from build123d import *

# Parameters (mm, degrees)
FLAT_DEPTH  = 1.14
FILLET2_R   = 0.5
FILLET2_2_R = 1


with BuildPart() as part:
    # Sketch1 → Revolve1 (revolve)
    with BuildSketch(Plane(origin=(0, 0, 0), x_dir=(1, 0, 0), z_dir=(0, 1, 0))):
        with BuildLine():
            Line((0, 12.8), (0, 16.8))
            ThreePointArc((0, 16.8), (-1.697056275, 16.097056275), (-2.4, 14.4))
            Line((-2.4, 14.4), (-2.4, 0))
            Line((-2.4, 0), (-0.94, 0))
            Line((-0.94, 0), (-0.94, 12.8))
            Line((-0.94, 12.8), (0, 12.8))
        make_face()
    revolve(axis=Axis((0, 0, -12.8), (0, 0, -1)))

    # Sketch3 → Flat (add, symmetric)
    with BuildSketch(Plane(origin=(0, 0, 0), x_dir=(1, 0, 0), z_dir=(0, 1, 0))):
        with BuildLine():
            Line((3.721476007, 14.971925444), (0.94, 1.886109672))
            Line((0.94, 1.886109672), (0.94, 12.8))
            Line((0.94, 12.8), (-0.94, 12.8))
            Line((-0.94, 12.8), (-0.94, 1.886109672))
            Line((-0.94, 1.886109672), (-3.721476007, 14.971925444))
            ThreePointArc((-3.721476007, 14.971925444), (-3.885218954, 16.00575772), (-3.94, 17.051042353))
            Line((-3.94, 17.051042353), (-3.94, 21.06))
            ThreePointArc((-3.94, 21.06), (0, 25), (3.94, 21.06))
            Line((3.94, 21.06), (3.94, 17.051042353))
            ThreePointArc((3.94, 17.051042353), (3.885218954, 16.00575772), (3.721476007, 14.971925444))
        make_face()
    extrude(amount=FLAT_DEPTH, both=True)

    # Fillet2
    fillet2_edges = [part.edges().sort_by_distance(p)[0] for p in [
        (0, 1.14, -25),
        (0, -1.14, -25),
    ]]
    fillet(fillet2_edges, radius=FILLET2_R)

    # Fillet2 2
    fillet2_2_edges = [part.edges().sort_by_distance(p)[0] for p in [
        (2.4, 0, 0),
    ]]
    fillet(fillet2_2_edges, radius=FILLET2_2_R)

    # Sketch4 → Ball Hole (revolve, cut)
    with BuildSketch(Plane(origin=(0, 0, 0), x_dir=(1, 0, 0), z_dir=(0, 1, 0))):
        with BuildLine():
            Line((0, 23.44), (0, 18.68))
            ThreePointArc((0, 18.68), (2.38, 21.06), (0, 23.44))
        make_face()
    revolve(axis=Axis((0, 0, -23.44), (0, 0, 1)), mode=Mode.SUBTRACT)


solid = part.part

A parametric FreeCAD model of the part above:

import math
import FreeCAD as App
import Part
import Sketcher
from FreeCAD import Vector
Q = App.Units.Quantity


def edges_at(feature, points):
    """Names of the edges that pass closest to the given points."""
    edges = feature.Shape.Edges
    near = lambda p: min(range(len(edges)), key=lambda i: edges[i].distToShape(Part.Vertex(*p))[0])
    return sorted({f"Edge{near(p) + 1}" for p in points})

doc = App.newDocument("Part")
params = doc.addObject("Spreadsheet::Sheet", "Params")
for row, (alias, value) in enumerate([
    ("sketch1_radius", "2.4 mm"),
    ("sketch1_height", "4 mm"),
    ("sketch1_height2", "14.4 mm"),
    ("sketch1_width", "1.46 mm"),
    ("revolution_angle", "360 deg"),
    ("sketch2_radius", "10 mm"),
    ("sketch2_radius2", "3.94 mm"),
    ("pad1_length", "2.28 mm"),
    ("fillet_radius", "0.5 mm"),
    ("fillet2_radius", "1 mm"),
    ("sketch3_radius", "2.38 mm"),
    ("groove_angle", "360 deg"),
], start=1):
    params.set(f"A{row}", alias)
    params.set(f"B{row}", "=" + value)
    params.setAlias(f"B{row}", alias)

body = doc.addObject("PartDesign::Body", "Body")

sketch1 = doc.addObject("Sketcher::SketchObject", "Sketch")
body.addObject(sketch1)
sketch1.AttachmentSupport = (doc.XZ_Plane, [""])
sketch1.MapMode = "FlatFace"
sketch1.addGeometry(Part.LineSegment(Vector(0, -12.8, 0), Vector(0, -16.8, 0)), False)
sketch1.addGeometry(Part.ArcOfCircle(Part.Circle(Vector(0, -14.4, 0), Vector(0, 0, 1), 2.4), math.radians(180), math.radians(270)), False)
sketch1.addGeometry(Part.LineSegment(Vector(-2.4, -14.4, 0), Vector(-2.4, 0, 0)), False)
sketch1.addGeometry(Part.LineSegment(Vector(-2.4, 0, 0), Vector(-0.9, 0, 0)), False)
sketch1.addGeometry(Part.LineSegment(Vector(-0.9, 0, 0), Vector(-0.9, -12.8, 0)), False)
sketch1.addGeometry(Part.LineSegment(Vector(-0.9, -12.8, 0), Vector(0, -12.8, 0)), False)
sketch1.addConstraint(Sketcher.Constraint("Coincident", 0, 2, 1, 2))
sketch1.addConstraint(Sketcher.Constraint("Tangent", 1, 1, 2, 1))
sketch1.addConstraint(Sketcher.Constraint("Coincident", 2, 2, 3, 1))
sketch1.addConstraint(Sketcher.Constraint("Coincident", 3, 2, 4, 1))
sketch1.addConstraint(Sketcher.Constraint("Coincident", 4, 2, 5, 1))
sketch1.addConstraint(Sketcher.Constraint("Coincident", 5, 2, 0, 1))
sketch1.addConstraint(Sketcher.Constraint("Vertical", 0))
sketch1.addConstraint(Sketcher.Constraint("Vertical", 2))
sketch1.addConstraint(Sketcher.Constraint("Horizontal", 3))
sketch1.addConstraint(Sketcher.Constraint("Vertical", 4))
sketch1.addConstraint(Sketcher.Constraint("Horizontal", 5))
sketch1.addConstraint(Sketcher.Constraint("PointOnObject", 1, 3, -2))
sketch1.addConstraint(Sketcher.Constraint("PointOnObject", 0, 2, -2))
sketch1.addConstraint(Sketcher.Constraint("PointOnObject", 2, 2, -1))
sketch1.addConstraint(Sketcher.Constraint("Radius", 1, 2.4))
sketch1.addConstraint(Sketcher.Constraint("DistanceY", 0, 2, 0, 1, 4.0))
sketch1.addConstraint(Sketcher.Constraint("DistanceY", 2, 1, 2, 2, 14.4))
sketch1.addConstraint(Sketcher.Constraint("DistanceX", 3, 1, 3, 2, 1.46))
sketch1.setExpression("Constraints[14]", "Params.sketch1_radius")
sketch1.setExpression("Constraints[15]", "Params.sketch1_height")
sketch1.setExpression("Constraints[16]", "Params.sketch1_height2")
sketch1.setExpression("Constraints[17]", "Params.sketch1_width")
revolution = doc.addObject("PartDesign::Revolution", "Revolution")
body.addObject(revolution)
revolution.Profile = sketch1
revolution.ReferenceAxis = (sketch1, ["V_Axis"])
revolution.setExpression("Angle", "Params.revolution_angle")

sketch2 = doc.addObject("Sketcher::SketchObject", "Sketch001")
body.addObject(sketch2)
sketch2.AttachmentSupport = (doc.XZ_Plane, [""])
sketch2.MapMode = "FlatFace"
sketch2.addGeometry(Part.LineSegment(Vector(0.9, -1.9, 0), Vector(3.7, -15, 0)), False)
sketch2.addGeometry(Part.ArcOfCircle(Part.Circle(Vector(-6.1, -17.1, 0), Vector(0, 0, 1), 10), math.radians(0), math.radians(12)), False)
sketch2.addGeometry(Part.LineSegment(Vector(3.9, -17.1, 0), Vector(3.9, -21.1, 0)), False)
sketch2.addGeometry(Part.ArcOfCircle(Part.Circle(Vector(0, -21.1, 0), Vector(0, 0, 1), 3.9), math.radians(180), math.radians(360)), False)
sketch2.addGeometry(Part.LineSegment(Vector(-3.9, -21.1, 0), Vector(-3.9, -17.1, 0)), False)
sketch2.addGeometry(Part.ArcOfCircle(Part.Circle(Vector(6.1, -17.1, 0), Vector(0, 0, 1), 10), math.radians(168), math.radians(180)), False)
sketch2.addGeometry(Part.LineSegment(Vector(-3.7, -15, 0), Vector(-0.9, -1.9, 0)), False)
sketch2.addGeometry(Part.LineSegment(Vector(-0.9, -1.9, 0), Vector(-0.9, -12.8, 0)), False)
sketch2.addGeometry(Part.LineSegment(Vector(-0.9, -12.8, 0), Vector(0.9, -12.8, 0)), False)
sketch2.addGeometry(Part.LineSegment(Vector(0.9, -12.8, 0), Vector(0.9, -1.9, 0)), False)
sketch2.addConstraint(Sketcher.Constraint("Tangent", 0, 2, 1, 2))
sketch2.addConstraint(Sketcher.Constraint("Tangent", 1, 1, 2, 1))
sketch2.addConstraint(Sketcher.Constraint("Tangent", 2, 2, 3, 2))
sketch2.addConstraint(Sketcher.Constraint("Tangent", 3, 1, 4, 1))
sketch2.addConstraint(Sketcher.Constraint("Tangent", 4, 2, 5, 2))
sketch2.addConstraint(Sketcher.Constraint("Tangent", 5, 1, 6, 1))
sketch2.addConstraint(Sketcher.Constraint("Coincident", 6, 2, 7, 1))
sketch2.addConstraint(Sketcher.Constraint("Coincident", 7, 2, 8, 1))
sketch2.addConstraint(Sketcher.Constraint("Coincident", 8, 2, 9, 1))
sketch2.addConstraint(Sketcher.Constraint("Coincident", 9, 2, 0, 1))
sketch2.addConstraint(Sketcher.Constraint("Vertical", 2))
sketch2.addConstraint(Sketcher.Constraint("Vertical", 4))
sketch2.addConstraint(Sketcher.Constraint("Vertical", 7))
sketch2.addConstraint(Sketcher.Constraint("Horizontal", 8))
sketch2.addConstraint(Sketcher.Constraint("Vertical", 9))
sketch2.addConstraint(Sketcher.Constraint("Equal", 1, 5))
sketch2.addConstraint(Sketcher.Constraint("Symmetric", 1, 3, 5, 3, -2))
sketch2.addConstraint(Sketcher.Constraint("Symmetric", 6, 2, 9, 2, -2))
sketch2.addConstraint(Sketcher.Constraint("Radius", 1, 10.0))
sketch2.addConstraint(Sketcher.Constraint("Angle", 0, Q("-78 deg")))
sketch2.addConstraint(Sketcher.Constraint("Radius", 3, 3.94))
sketch2.addConstraint(Sketcher.Constraint("DistanceX", 4, 2, 6, 2, 3.0))
sketch2.addConstraint(Sketcher.Constraint("DistanceY", 7, 2, -1, 1, 12.8))
sketch2.addConstraint(Sketcher.Constraint("DistanceY", 3, 3, -1, 1, 21.06))
sketch2.addConstraint(Sketcher.Constraint("DistanceY", 7, 2, 7, 1, 10.91389))
sketch2.setExpression("Constraints[18]", "Params.sketch2_radius")
sketch2.setExpression("Constraints[20]", "Params.sketch2_radius2")
pad1 = doc.addObject("PartDesign::Pad", "Pad")
body.addObject(pad1)
pad1.Profile = sketch2
pad1.setExpression("Length", "Params.pad1_length")
pad1.Midplane = True
doc.recompute()

fillet = doc.addObject("PartDesign::Fillet", "Fillet")
body.addObject(fillet)
fillet.Base = (pad1, edges_at(pad1, [(0, 1.14, -25), (0, -1.14, -25)]))
fillet.setExpression("Radius", "Params.fillet_radius")
doc.recompute()

fillet2 = doc.addObject("PartDesign::Fillet", "Fillet001")
body.addObject(fillet2)
fillet2.Base = (fillet, edges_at(fillet, [(2.4, 0, 0)]))
fillet2.setExpression("Radius", "Params.fillet2_radius")

sketch3 = doc.addObject("Sketcher::SketchObject", "Sketch002")
body.addObject(sketch3)
sketch3.AttachmentSupport = (doc.XZ_Plane, [""])
sketch3.MapMode = "FlatFace"
sketch3.addGeometry(Part.LineSegment(Vector(0, -23.4, 0), Vector(0, -18.7, 0)), False)
sketch3.addGeometry(Part.ArcOfCircle(Part.Circle(Vector(0, -21.1, 0), Vector(0, 0, 1), 2.4), math.radians(-90), math.radians(90)), False)
sketch3.addConstraint(Sketcher.Constraint("Coincident", 0, 1, 1, 1))
sketch3.addConstraint(Sketcher.Constraint("Coincident", 1, 2, 0, 2))
sketch3.addConstraint(Sketcher.Constraint("Vertical", 0))
sketch3.addConstraint(Sketcher.Constraint("PointOnObject", 1, 3, -2))
sketch3.addConstraint(Sketcher.Constraint("PointOnObject", 0, 1, -2))
sketch3.addConstraint(Sketcher.Constraint("Radius", 1, 2.38))
sketch3.addConstraint(Sketcher.Constraint("DistanceY", 1, 3, -1, 1, 21.06))
sketch3.setExpression("Constraints[5]", "Params.sketch3_radius")
groove = doc.addObject("PartDesign::Groove", "Groove")
body.addObject(groove)
groove.Profile = sketch3
groove.ReferenceAxis = (sketch3, ["V_Axis"])
groove.setExpression("Angle", "Params.groove_angle")

doc.recompute()
